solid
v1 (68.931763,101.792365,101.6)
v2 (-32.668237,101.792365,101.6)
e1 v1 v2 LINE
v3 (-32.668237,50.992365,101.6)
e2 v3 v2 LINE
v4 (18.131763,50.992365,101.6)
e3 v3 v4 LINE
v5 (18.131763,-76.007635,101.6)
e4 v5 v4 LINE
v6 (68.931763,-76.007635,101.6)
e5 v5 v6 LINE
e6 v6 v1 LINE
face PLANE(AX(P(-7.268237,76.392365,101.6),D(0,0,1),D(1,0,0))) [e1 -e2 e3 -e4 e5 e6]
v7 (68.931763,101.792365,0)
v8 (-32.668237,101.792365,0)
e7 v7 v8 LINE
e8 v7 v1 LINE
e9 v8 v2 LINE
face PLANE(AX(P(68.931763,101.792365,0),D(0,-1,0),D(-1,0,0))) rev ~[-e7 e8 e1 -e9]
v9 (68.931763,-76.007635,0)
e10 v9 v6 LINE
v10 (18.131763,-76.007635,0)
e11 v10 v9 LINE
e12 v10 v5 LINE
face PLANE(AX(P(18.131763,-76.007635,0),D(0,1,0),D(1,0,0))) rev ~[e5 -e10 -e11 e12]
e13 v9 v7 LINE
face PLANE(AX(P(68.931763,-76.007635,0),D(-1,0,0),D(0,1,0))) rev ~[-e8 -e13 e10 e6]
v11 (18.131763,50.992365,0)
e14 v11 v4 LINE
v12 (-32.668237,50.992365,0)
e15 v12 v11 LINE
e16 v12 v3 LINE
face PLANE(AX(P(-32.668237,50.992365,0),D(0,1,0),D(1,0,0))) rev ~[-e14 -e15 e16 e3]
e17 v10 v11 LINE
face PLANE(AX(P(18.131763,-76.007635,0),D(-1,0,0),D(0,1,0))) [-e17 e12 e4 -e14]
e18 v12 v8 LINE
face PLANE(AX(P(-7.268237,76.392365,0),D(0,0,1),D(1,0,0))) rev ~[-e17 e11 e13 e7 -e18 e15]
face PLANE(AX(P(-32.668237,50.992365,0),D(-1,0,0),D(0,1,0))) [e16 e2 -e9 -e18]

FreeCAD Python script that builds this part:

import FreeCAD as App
import Part
import Sketcher
Q = App.Units.Quantity


def add_polygon(sketch, points):
    """Adds a closed chain of lines whose ends are joined by coincident constraints."""
    first, n = sketch.GeometryCount, len(points)
    for a, b in zip(points, points[1:] + points[:1]):
        sketch.addGeometry(Part.LineSegment(App.Vector(*a, 0), App.Vector(*b, 0)), False)
    for i in range(n):
        sketch.addConstraint(Sketcher.Constraint("Coincident", first + i, 2, first + (i + 1) % n, 1))

doc = App.newDocument("Part")
params = doc.addObject("Spreadsheet::Sheet", "Params")
for row, (alias, value) in enumerate([
    ("sketch1_width", "2 in"),
    ("sketch1_height", "5 in"),
    ("pad1_length", "4 in"),
], start=1):
    params.set(f"A{row}", alias)
    params.set(f"B{row}", "=" + value)
    params.setAlias(f"B{row}", alias)

body = doc.addObject("PartDesign::Body", "Body")

# Sketch on XY plane
sketch1 = body.newObject("Sketcher::SketchObject", "Sketch")
sketch1.AttachmentSupport = (doc.getObject("XY_Plane"), [""])
sketch1.MapMode = "FlatFace"
add_polygon(sketch1, [(-33, 102), (-33, 51), (18, 51), (18, -76), (69, -76), (69, 102)])  # lines 0-5
sketch1.addConstraint([
    Sketcher.Constraint("Vertical", 0),
    Sketcher.Constraint("Horizontal", 1),
    Sketcher.Constraint("Vertical", 2),
    Sketcher.Constraint("Horizontal", 3),
    Sketcher.Constraint("Vertical", 4),
    Sketcher.Constraint("Horizontal", 5),
    Sketcher.Constraint("Equal", 1, 3),
    Sketcher.Constraint("Equal", 3, 0),
    Sketcher.Constraint("DistanceX", 1, 1, 1, 2, Q("2 in")),
    Sketcher.Constraint("DistanceY", 2, 2, 2, 1, Q("5 in")),
    Sketcher.Constraint("DistanceX", 0, 2, -1, 1, Q("32.668237 mm")),
    Sketcher.Constraint("DistanceY", -1, 1, 0, 2, Q("50.992365 mm")),
])
sketch1.setExpression("Constraints[14]", "Params.sketch1_width")
sketch1.setExpression("Constraints[15]", "Params.sketch1_height")
pad1 = body.newObject("PartDesign::Pad", "Pad")
pad1.Profile = sketch1
pad1.setExpression("Length", "Params.pad1_length")

doc.recompute()
